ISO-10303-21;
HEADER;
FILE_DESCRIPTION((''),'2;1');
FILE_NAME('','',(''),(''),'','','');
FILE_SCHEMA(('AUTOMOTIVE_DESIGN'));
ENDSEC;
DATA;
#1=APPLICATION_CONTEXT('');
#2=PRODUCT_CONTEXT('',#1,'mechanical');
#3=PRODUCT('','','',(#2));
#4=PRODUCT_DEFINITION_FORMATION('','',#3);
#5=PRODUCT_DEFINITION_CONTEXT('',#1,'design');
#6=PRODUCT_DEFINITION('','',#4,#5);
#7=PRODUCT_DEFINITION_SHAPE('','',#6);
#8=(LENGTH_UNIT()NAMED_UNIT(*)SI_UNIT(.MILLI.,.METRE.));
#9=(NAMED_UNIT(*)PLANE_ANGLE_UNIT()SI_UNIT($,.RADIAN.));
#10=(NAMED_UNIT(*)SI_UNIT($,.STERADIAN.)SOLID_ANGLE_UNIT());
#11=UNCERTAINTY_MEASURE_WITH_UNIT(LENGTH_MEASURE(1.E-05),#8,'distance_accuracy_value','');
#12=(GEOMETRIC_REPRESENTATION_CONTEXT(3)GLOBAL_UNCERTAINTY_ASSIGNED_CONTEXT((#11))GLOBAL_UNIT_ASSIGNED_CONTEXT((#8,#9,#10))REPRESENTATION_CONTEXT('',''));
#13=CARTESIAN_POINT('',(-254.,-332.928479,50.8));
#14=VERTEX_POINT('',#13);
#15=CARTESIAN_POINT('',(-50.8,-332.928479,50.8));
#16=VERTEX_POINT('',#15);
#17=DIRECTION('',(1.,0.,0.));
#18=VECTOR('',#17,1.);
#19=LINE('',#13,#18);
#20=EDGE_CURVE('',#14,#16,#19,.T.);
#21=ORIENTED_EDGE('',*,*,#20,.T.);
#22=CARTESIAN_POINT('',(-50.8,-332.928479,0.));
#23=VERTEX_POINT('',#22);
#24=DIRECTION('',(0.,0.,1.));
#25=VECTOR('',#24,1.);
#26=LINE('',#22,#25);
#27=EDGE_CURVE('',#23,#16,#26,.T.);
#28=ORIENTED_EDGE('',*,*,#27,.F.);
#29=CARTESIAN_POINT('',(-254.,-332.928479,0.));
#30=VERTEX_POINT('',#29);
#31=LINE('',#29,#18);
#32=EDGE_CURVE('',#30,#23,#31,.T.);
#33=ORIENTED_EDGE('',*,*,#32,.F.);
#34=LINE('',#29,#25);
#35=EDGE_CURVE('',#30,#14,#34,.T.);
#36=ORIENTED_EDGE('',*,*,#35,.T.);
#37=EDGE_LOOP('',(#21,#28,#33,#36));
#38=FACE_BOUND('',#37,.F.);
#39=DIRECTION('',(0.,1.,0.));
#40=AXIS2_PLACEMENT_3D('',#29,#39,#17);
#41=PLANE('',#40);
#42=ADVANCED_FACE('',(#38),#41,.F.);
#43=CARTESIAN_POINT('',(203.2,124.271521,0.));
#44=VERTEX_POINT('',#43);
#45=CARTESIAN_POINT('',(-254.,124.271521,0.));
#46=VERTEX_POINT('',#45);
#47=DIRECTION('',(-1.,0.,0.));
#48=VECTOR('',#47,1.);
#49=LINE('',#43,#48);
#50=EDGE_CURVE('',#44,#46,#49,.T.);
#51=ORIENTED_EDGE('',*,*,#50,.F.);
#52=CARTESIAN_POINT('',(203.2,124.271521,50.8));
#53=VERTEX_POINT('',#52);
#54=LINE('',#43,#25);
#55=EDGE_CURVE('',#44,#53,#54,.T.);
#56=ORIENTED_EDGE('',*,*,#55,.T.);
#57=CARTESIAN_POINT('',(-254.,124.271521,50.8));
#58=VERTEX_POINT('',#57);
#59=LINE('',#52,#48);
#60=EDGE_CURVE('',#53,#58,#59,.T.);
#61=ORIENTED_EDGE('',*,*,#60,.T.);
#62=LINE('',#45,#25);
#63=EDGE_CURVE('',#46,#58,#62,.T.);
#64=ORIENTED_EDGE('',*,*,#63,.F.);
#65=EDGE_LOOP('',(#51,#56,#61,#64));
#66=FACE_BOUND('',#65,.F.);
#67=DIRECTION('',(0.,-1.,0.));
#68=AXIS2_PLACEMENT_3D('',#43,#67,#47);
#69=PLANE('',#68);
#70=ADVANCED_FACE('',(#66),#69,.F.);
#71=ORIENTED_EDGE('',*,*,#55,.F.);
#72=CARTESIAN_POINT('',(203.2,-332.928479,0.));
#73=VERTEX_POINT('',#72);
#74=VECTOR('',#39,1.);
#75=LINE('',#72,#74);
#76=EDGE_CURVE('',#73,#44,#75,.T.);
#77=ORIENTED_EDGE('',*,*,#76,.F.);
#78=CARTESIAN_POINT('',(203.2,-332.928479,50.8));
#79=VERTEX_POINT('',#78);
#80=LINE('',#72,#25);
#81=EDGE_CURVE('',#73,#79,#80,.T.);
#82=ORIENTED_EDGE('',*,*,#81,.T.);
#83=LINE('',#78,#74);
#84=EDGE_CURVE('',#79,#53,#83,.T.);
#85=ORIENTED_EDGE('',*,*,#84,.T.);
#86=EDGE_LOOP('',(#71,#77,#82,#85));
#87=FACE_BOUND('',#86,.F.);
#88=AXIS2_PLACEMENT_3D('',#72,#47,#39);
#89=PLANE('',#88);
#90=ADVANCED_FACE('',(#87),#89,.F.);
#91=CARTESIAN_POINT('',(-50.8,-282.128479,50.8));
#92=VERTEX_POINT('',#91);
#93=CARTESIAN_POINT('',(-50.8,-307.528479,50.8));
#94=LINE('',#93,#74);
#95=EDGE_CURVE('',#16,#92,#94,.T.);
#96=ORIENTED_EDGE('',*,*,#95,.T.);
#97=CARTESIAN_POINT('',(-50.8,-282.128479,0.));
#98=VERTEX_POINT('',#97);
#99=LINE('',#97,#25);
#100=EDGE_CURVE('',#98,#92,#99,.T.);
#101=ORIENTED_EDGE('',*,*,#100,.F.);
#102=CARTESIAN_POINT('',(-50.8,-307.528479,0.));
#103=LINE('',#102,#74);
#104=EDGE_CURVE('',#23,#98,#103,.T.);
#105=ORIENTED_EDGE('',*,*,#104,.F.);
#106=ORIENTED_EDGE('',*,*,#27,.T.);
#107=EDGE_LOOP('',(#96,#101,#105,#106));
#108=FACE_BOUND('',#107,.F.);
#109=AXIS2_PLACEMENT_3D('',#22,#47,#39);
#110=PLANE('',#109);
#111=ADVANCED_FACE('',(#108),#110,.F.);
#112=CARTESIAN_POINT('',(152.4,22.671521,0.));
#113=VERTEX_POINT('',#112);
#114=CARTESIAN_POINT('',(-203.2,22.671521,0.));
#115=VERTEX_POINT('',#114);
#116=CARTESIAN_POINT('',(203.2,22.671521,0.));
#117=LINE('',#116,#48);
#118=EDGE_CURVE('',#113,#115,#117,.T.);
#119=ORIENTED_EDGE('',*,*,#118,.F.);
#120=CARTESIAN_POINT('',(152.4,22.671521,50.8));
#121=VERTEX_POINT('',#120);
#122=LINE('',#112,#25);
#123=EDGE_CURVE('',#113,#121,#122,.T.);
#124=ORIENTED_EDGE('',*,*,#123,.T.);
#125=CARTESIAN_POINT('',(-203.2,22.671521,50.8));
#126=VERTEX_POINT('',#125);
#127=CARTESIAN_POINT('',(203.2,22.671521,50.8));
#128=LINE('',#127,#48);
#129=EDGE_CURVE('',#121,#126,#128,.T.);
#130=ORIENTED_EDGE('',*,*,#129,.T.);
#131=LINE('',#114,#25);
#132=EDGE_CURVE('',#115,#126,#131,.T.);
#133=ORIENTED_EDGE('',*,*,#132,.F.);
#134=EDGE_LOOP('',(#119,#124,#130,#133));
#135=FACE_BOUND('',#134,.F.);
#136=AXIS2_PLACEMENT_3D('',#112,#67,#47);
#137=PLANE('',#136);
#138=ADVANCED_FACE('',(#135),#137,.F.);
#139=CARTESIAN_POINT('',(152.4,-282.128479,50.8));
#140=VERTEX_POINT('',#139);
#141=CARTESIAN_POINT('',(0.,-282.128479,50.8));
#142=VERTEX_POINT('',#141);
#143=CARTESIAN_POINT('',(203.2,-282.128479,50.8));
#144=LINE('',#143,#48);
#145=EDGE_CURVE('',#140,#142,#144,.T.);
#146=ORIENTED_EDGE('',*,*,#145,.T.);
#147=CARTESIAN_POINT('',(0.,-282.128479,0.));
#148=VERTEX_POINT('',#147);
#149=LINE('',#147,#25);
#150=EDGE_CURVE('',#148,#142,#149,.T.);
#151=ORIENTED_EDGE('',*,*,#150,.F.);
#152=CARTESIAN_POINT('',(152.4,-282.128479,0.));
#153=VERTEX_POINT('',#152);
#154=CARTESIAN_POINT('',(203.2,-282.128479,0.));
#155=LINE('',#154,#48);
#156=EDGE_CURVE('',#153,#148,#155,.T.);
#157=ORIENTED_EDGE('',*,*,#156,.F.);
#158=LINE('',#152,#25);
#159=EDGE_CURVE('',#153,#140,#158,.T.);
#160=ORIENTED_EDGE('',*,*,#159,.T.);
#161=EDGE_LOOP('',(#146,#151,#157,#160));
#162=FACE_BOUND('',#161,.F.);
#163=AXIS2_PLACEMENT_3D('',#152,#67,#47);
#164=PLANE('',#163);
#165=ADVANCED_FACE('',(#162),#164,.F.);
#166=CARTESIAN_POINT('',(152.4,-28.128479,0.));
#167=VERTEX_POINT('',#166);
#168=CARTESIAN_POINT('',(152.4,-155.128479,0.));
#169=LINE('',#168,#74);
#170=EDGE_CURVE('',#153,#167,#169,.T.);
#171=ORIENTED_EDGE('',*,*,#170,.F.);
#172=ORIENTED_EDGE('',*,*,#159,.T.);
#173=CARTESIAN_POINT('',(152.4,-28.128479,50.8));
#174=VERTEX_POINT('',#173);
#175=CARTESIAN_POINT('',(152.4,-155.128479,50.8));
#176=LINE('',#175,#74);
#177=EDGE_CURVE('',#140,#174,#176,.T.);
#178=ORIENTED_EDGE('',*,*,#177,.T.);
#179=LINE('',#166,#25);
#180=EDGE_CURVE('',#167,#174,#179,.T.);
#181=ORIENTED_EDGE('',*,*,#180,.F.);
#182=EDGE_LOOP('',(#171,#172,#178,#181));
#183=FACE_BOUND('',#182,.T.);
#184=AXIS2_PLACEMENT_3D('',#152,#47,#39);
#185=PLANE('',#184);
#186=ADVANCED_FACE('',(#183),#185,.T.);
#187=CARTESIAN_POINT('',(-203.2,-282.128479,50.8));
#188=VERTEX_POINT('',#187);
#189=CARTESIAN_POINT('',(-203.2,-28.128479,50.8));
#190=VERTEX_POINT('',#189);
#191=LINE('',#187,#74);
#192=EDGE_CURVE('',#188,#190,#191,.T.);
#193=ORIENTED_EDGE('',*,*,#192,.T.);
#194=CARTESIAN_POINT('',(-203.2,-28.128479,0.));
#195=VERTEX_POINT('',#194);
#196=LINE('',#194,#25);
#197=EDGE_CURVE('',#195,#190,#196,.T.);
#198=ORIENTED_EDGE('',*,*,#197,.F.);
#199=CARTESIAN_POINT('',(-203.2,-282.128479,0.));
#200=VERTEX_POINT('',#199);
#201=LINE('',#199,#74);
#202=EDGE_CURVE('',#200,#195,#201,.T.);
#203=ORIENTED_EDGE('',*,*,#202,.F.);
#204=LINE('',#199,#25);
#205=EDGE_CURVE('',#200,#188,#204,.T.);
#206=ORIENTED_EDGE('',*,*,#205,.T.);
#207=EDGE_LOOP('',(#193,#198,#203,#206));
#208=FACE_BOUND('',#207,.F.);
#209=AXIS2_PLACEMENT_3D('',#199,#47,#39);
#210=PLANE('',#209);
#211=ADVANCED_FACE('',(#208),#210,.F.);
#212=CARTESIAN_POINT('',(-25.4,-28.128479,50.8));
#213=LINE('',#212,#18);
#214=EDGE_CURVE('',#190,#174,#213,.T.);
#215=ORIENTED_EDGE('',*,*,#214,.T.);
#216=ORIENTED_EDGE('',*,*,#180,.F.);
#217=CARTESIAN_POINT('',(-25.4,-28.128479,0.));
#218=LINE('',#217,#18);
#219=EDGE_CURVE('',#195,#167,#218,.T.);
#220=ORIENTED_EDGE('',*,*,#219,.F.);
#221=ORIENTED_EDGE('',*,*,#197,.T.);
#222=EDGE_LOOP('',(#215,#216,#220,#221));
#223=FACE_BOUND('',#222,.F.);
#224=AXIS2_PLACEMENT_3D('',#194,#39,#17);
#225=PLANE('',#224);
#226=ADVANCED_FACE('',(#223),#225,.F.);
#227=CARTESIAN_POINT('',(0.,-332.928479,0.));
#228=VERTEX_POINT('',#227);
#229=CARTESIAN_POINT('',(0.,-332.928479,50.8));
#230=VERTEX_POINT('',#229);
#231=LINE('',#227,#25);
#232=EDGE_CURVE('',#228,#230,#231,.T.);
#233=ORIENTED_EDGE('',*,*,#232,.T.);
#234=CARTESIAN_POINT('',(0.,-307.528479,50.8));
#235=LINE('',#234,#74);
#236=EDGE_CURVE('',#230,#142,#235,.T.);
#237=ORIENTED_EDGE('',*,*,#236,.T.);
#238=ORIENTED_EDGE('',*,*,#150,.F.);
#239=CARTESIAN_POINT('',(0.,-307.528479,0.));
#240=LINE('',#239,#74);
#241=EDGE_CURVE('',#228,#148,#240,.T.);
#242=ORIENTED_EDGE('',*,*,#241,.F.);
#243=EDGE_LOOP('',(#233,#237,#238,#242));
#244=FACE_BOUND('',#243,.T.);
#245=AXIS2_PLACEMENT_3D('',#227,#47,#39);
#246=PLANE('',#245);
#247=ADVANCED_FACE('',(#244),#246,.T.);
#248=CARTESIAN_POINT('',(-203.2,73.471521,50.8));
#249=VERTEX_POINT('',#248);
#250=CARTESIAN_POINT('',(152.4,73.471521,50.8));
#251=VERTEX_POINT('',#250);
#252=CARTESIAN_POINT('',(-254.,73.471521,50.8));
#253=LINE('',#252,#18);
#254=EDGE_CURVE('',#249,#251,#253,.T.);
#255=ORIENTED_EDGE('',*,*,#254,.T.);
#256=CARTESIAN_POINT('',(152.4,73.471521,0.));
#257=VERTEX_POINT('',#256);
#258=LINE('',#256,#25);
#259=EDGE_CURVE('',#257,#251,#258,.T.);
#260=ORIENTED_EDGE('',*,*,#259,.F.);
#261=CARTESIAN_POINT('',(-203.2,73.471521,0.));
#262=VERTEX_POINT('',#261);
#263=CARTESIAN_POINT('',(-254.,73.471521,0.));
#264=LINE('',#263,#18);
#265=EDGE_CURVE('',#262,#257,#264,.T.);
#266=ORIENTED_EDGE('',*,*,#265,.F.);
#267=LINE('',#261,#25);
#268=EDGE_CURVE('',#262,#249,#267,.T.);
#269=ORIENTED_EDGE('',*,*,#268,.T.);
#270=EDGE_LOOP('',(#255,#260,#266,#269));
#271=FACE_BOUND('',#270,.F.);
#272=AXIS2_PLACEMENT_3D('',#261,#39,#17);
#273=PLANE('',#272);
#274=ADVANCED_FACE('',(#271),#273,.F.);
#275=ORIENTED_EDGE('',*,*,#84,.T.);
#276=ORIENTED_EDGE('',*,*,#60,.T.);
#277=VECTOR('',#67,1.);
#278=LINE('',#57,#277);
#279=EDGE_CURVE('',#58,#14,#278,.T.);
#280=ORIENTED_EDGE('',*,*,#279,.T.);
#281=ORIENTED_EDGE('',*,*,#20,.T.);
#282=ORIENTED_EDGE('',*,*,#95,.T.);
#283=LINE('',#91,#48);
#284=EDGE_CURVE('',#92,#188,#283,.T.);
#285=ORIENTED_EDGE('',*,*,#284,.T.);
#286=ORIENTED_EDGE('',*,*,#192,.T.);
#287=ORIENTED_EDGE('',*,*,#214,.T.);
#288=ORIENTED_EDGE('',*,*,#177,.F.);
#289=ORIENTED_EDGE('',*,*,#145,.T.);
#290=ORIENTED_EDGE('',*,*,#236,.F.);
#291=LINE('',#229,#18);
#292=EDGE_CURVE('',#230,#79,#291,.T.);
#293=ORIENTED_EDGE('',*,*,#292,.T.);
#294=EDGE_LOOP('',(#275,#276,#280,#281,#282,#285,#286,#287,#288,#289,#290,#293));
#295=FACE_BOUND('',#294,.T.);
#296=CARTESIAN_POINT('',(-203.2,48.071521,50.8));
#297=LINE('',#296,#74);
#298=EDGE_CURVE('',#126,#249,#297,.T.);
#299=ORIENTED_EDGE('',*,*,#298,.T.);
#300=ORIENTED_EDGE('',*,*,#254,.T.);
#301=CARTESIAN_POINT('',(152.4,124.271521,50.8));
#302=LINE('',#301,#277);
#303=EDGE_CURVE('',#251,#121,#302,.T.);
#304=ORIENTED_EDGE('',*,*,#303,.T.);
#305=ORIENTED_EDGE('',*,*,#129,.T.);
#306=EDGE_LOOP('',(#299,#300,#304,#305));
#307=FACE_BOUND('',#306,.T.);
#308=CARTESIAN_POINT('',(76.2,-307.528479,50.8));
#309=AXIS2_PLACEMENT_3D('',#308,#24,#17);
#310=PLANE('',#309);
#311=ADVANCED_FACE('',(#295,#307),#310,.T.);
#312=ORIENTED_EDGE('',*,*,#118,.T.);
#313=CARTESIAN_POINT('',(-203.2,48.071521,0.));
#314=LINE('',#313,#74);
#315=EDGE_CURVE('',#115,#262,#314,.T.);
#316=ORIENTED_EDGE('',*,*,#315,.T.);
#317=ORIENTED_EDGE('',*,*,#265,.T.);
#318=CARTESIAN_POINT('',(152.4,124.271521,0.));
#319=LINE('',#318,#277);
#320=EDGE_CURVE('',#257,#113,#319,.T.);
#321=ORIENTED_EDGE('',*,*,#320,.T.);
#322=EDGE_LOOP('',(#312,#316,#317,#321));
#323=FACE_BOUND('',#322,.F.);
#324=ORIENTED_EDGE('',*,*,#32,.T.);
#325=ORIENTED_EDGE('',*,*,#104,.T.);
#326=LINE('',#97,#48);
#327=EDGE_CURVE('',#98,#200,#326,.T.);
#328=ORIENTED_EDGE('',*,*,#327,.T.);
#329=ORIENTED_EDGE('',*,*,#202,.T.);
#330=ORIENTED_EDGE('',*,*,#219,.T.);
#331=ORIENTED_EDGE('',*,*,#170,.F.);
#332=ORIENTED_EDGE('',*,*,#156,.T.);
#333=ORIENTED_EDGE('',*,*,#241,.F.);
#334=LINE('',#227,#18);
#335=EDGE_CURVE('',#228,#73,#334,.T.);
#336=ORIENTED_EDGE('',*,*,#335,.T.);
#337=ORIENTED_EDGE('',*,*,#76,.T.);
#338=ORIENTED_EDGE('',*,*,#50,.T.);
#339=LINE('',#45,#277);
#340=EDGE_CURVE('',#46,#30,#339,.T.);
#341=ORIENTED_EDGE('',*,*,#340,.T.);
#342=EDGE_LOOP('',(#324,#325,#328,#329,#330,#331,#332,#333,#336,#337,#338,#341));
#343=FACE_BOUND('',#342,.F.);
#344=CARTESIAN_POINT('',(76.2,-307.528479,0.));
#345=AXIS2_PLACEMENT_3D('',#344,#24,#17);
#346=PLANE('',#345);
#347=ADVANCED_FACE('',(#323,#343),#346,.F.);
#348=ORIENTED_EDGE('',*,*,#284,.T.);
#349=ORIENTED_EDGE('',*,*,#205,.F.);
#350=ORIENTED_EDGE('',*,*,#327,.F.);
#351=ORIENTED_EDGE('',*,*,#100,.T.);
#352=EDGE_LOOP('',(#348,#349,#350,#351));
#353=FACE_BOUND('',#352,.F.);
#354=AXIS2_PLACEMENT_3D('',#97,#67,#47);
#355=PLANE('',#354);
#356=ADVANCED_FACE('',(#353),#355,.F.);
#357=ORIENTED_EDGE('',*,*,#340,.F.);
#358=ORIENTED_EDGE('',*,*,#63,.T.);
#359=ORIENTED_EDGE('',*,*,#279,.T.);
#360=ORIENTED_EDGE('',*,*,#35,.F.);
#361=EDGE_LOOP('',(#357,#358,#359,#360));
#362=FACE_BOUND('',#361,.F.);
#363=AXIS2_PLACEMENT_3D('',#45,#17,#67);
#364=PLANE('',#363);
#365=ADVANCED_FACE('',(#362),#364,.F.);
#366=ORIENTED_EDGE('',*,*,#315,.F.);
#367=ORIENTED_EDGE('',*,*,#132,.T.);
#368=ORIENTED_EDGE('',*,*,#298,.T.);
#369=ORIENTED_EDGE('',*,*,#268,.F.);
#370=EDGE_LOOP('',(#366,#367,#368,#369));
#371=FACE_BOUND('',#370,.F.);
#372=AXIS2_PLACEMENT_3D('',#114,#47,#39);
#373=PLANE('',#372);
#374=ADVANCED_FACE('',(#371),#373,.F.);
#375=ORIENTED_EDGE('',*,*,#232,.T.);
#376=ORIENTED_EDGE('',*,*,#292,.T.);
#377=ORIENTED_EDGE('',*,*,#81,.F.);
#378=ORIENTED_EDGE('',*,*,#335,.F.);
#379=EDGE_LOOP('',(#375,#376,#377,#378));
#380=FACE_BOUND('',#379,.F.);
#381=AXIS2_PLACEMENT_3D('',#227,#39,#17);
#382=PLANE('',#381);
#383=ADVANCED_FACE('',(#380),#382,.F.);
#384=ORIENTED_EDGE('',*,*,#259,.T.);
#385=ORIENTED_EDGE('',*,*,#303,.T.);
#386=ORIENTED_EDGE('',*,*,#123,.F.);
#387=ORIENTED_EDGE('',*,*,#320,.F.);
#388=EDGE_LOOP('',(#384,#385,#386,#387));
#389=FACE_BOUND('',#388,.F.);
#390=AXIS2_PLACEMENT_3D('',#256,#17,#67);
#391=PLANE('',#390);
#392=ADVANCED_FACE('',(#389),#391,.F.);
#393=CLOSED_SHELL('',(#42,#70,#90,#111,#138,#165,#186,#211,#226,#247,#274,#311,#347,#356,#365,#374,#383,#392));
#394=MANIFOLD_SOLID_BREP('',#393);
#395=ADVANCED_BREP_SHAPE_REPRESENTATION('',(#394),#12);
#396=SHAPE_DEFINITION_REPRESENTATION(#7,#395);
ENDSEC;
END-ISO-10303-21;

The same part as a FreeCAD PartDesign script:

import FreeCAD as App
import Part
import Sketcher
Q = App.Units.Quantity


def add_polygon(sketch, points):
    """Adds a closed chain of lines whose ends are joined by coincident constraints."""
    first, n = sketch.GeometryCount, len(points)
    for a, b in zip(points, points[1:] + points[:1]):
        sketch.addGeometry(Part.LineSegment(App.Vector(*a, 0), App.Vector(*b, 0)), False)
    for i in range(n):
        sketch.addConstraint(Sketcher.Constraint("Coincident", first + i, 2, first + (i + 1) % n, 1))

doc = App.newDocument("Part")
params = doc.addObject("Spreadsheet::Sheet", "Params")
for row, (alias, value) in enumerate([
    ("sketch1_width", "8 in"),
    ("sketch1_width2", "18 in"),
    ("sketch1_width3", "6 in"),
    ("sketch1_height", "2 in"),
    ("sketch1_height2", "10 in"),
    ("pad1_length", "2 in"),
], start=1):
    params.set(f"A{row}", alias)
    params.set(f"B{row}", "=" + value)
    params.setAlias(f"B{row}", alias)

body = doc.addObject("PartDesign::Body", "Body")

sketch1 = body.newObject("Sketcher::SketchObject", "Sketch")
sketch1.AttachmentSupport = (doc.getObject("XY_Plane"), [""])
sketch1.MapMode = "FlatFace"
add_polygon(sketch1, [(0, -282), (0, -333), (203, -333), (203, 124), (-254, 124), (-254, -333), (-51, -333), (-51, -282), (-203, -282), (-203, -28), (152, -28), (152, -282)])
add_polygon(sketch1, [(-203, 73), (152, 73), (152, 23), (-203, 23)])
sketch1.addConstraint([
    Sketcher.Constraint("Vertical", 0),
    Sketcher.Constraint("Horizontal", 1),
    Sketcher.Constraint("Vertical", 2),
    Sketcher.Constraint("Horizontal", 3),
    Sketcher.Constraint("Vertical", 4),
    Sketcher.Constraint("Horizontal", 5),
    Sketcher.Constraint("Vertical", 6),
    Sketcher.Constraint("Horizontal", 7),
    Sketcher.Constraint("Vertical", 8),
    Sketcher.Constraint("Horizontal", 9),
    Sketcher.Constraint("Vertical", 10),
    Sketcher.Constraint("Horizontal", 11),
    Sketcher.Constraint("Horizontal", 12),
    Sketcher.Constraint("Vertical", 13),
    Sketcher.Constraint("Horizontal", 14),
    Sketcher.Constraint("Vertical", 15),
    Sketcher.Constraint("PointOnObject", 0, 2, -2),
    Sketcher.Constraint("Horizontal", 1, 2, 4, 2),
    Sketcher.Constraint("Horizontal", 7, 2, 10, 2),
    Sketcher.Constraint("Vertical", 10, 2, 12, 2),
    Sketcher.Constraint("Vertical", 8, 2, 14, 2),
    Sketcher.Constraint("Equal", 1, 5),
    Sketcher.Constraint("Equal", 7, 11),
    Sketcher.Constraint("Equal", 3, 2),
    Sketcher.Constraint("Equal", 6, 13),
    Sketcher.Constraint("DistanceX", 1, 1, 1, 2, Q("8 in")),
    Sketcher.Constraint("DistanceX", 3, 2, 3, 1, Q("18 in")),
    Sketcher.Constraint("DistanceX", 7, 2, 7, 1, Q("6 in")),
    Sketcher.Constraint("DistanceY", 0, 2, 0, 1, Q("2 in")),
    Sketcher.Constraint("DistanceY", 8, 1, 8, 2, Q("10 in")),
    Sketcher.Constraint("DistanceY", 12, 2, 2, 2, Q("2 in")),
    Sketcher.Constraint("DistanceY", 0, 2, -1, 1, 332.928479),
])
sketch1.setExpression("Constraints[41]", "Params.sketch1_width")
sketch1.setExpression("Constraints[42]", "Params.sketch1_width2")
sketch1.setExpression("Constraints[43]", "Params.sketch1_width3")
sketch1.setExpression("Constraints[44]", "Params.sketch1_height")
sketch1.setExpression("Constraints[45]", "Params.sketch1_height2")
pad1 = body.newObject("PartDesign::Pad", "Pad")
pad1.Profile = sketch1
pad1.setExpression("Length", "Params.pad1_length")

doc.recompute()
